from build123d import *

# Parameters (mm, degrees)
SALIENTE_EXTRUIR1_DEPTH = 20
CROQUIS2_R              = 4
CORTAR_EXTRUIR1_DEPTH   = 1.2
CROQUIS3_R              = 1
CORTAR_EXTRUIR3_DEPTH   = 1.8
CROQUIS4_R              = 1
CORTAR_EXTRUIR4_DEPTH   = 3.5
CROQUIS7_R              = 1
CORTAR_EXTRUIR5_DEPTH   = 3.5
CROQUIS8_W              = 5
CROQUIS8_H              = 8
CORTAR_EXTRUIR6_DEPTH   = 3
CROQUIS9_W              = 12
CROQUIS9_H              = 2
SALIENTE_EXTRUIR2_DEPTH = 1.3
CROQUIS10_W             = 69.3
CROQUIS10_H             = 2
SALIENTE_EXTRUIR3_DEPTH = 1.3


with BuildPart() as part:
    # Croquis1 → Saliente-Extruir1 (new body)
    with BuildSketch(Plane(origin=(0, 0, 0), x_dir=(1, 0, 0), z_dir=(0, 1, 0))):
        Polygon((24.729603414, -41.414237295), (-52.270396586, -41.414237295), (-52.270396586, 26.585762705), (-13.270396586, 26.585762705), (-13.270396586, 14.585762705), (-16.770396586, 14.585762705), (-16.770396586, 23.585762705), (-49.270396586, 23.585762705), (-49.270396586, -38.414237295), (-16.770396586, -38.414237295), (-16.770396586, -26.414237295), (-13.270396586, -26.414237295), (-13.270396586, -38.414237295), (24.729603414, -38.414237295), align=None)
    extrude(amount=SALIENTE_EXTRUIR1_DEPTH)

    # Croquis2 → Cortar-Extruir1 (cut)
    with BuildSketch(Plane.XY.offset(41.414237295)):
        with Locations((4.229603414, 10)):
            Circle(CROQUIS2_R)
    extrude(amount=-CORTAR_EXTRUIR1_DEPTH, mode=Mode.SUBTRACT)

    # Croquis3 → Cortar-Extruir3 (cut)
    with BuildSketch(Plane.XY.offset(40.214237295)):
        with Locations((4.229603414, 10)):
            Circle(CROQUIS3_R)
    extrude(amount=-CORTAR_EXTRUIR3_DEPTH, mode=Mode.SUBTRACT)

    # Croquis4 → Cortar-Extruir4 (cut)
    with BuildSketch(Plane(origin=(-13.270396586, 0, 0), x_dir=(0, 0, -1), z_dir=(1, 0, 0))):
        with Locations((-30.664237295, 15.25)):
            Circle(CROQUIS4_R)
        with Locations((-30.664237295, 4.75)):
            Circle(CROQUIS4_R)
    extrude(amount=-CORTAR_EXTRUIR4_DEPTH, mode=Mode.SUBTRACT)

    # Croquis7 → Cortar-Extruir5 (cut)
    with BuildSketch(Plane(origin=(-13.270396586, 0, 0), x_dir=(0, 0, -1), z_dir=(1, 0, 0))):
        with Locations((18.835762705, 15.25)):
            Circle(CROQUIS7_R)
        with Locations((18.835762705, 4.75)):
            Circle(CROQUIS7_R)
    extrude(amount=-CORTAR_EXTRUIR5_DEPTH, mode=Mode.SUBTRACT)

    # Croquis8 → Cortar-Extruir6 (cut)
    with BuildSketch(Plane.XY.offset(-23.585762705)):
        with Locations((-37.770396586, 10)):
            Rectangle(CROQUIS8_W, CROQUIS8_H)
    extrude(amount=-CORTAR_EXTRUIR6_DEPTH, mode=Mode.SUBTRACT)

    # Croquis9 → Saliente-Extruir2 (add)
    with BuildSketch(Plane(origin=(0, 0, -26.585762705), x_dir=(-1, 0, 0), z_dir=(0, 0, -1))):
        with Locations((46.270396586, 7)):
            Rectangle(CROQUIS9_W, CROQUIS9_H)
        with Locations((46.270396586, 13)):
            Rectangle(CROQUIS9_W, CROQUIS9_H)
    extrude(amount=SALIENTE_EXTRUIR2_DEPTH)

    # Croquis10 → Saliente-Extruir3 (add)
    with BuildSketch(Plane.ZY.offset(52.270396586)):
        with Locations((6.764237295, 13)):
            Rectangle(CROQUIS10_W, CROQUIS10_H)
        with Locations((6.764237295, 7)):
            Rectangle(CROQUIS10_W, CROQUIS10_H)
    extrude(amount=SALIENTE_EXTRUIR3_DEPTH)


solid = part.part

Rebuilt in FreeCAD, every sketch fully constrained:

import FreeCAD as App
import Part
import Sketcher
from FreeCAD import Vector

doc = App.newDocument("Part")
body = doc.addObject("PartDesign::Body", "Body")

sketch1 = body.newObject("Sketcher::SketchObject", "Sketch")
sketch1.AttachmentSupport = (doc.getObject("XZ_Plane"), [""])
sketch1.MapMode = "FlatFace"
sketch1.addGeometry([
    Part.LineSegment(Vector(-52.3, 41.4, 0), Vector(24.7, 41.4, 0)),
    Part.LineSegment(Vector(24.7, 41.4, 0), Vector(24.7, 38.4, 0)),
    Part.LineSegment(Vector(24.7, 38.4, 0), Vector(-13.3, 38.4, 0)),
    Part.LineSegment(Vector(-13.3, 38.4, 0), Vector(-13.3, 26.4, 0)),
    Part.LineSegment(Vector(-13.3, 26.4, 0), Vector(-16.8, 26.4, 0)),
    Part.LineSegment(Vector(-16.8, 26.4, 0), Vector(-16.8, 38.4, 0)),
    Part.LineSegment(Vector(-16.8, 38.4, 0), Vector(-49.3, 38.4, 0)),
    Part.LineSegment(Vector(-49.3, 38.4, 0), Vector(-49.3, -23.6, 0)),
    Part.LineSegment(Vector(-49.3, -23.6, 0), Vector(-16.8, -23.6, 0)),
    Part.LineSegment(Vector(-16.8, -23.6, 0), Vector(-16.8, -14.6, 0)),
    Part.LineSegment(Vector(-16.8, -14.6, 0), Vector(-13.3, -14.6, 0)),
    Part.LineSegment(Vector(-13.3, -14.6, 0), Vector(-13.3, -26.6, 0)),
    Part.LineSegment(Vector(-13.3, -26.6, 0), Vector(-52.3, -26.6, 0)),
    Part.LineSegment(Vector(-52.3, -26.6, 0), Vector(-52.3, 41.4, 0)),
], False)
sketch1.addConstraint([
    Sketcher.Constraint("Coincident", 0, 2, 1, 1),
    Sketcher.Constraint("Coincident", 1, 2, 2, 1),
    Sketcher.Constraint("Coincident", 2, 2, 3, 1),
    Sketcher.Constraint("Coincident", 3, 2, 4, 1),
    Sketcher.Constraint("Coincident", 4, 2, 5, 1),
    Sketcher.Constraint("Coincident", 5, 2, 6, 1),
    Sketcher.Constraint("Coincident", 6, 2, 7, 1),
    Sketcher.Constraint("Coincident", 7, 2, 8, 1),
    Sketcher.Constraint("Coincident", 8, 2, 9, 1),
    Sketcher.Constraint("Coincident", 9, 2, 10, 1),
    Sketcher.Constraint("Coincident", 10, 2, 11, 1),
    Sketcher.Constraint("Coincident", 11, 2, 12, 1),
    Sketcher.Constraint("Coincident", 12, 2, 13, 1),
    Sketcher.Constraint("Coincident", 13, 2, 0, 1),
    Sketcher.Constraint("Horizontal", 0),
    Sketcher.Constraint("Vertical", 1),
    Sketcher.Constraint("Horizontal", 2),
    Sketcher.Constraint("Vertical", 3),
    Sketcher.Constraint("Horizontal", 4),
    Sketcher.Constraint("Vertical", 5),
    Sketcher.Constraint("Horizontal", 6),
    Sketcher.Constraint("Vertical", 7),
    Sketcher.Constraint("Horizontal", 8),
    Sketcher.Constraint("Vertical", 9),
    Sketcher.Constraint("Horizontal", 10),
    Sketcher.Constraint("Vertical", 11),
    Sketcher.Constraint("Horizontal", 12),
    Sketcher.Constraint("Vertical", 13),
    Sketcher.Constraint("Horizontal", 2, 2, 5, 2),
    Sketcher.Constraint("Vertical", 5, 2, 8, 2),
    Sketcher.Constraint("Vertical", 3, 2, 10, 2),
    Sketcher.Constraint("Equal", 5, 11),
    Sketcher.Constraint("DistanceX", 0, 1, 0, 2, 77.0),
    Sketcher.Constraint("DistanceX", 2, 2, 2, 1, 38.0),
    Sketcher.Constraint("DistanceY", 1, 2, 1, 1, 3.0),
    Sketcher.Constraint("DistanceY", 3, 2, 3, 1, 12.0),
    Sketcher.Constraint("DistanceY", 7, 2, 7, 1, 62.0),
    Sketcher.Constraint("DistanceY", 9, 1, 9, 2, 9.0),
    Sketcher.Constraint("DistanceX", 4, 2, 4, 1, 3.5),
    Sketcher.Constraint("DistanceX", 6, 2, 6, 1, 32.5),
    Sketcher.Constraint("DistanceX", -1, 1, 0, 2, 24.729603),
    Sketcher.Constraint("DistanceY", -1, 1, 0, 2, 41.414237),
])
pad1 = body.newObject("PartDesign::Pad", "Pad")
pad1.Profile = sketch1
pad1.Length = 20
pad1.Reversed = True

sketch2 = body.newObject("Sketcher::SketchObject", "Sketch001")
sketch2.AttachmentSupport = (doc.getObject("XY_Plane"), [""])
sketch2.MapMode = "FlatFace"
sketch2.AttachmentOffset = App.Placement(Vector(0, 0, 41.414237), App.Rotation())
sketch2.addGeometry(Part.Circle(Vector(4.2, 10, 0), Vector(0, 0, 1), 4), False)
sketch2.addConstraint([
    Sketcher.Constraint("Diameter", 0, 8.0),
    Sketcher.Constraint("DistanceY", -1, 1, 0, 3, 10.0),
    Sketcher.Constraint("DistanceX", -1, 1, 0, 3, 4.229603),
])
pocket1 = body.newObject("PartDesign::Pocket", "Pocket")
pocket1.Profile = sketch2
pocket1.Length = 1.2

sketch3 = body.newObject("Sketcher::SketchObject", "Sketch002")
sketch3.AttachmentSupport = (doc.getObject("XY_Plane"), [""])
sketch3.MapMode = "FlatFace"
sketch3.AttachmentOffset = App.Placement(Vector(0, 0, 40.214237), App.Rotation())
sketch3.addGeometry(Part.Circle(Vector(4.2, 10, 0), Vector(0, 0, 1), 1), False)
sketch3.addConstraint([
    Sketcher.Constraint("Diameter", 0, 2.0),
    Sketcher.Constraint("DistanceY", -1, 1, 0, 3, 10.0),
    Sketcher.Constraint("DistanceX", -1, 1, 0, 3, 4.229603),
])
pocket2 = body.newObject("PartDesign::Pocket", "Pocket001")
pocket2.Profile = sketch3
pocket2.Length = 1.8

sketch4 = body.newObject("Sketcher::SketchObject", "Sketch003")
sketch4.AttachmentSupport = (doc.getObject("YZ_Plane"), [""])
sketch4.MapMode = "FlatFace"
sketch4.AttachmentOffset = App.Placement(Vector(0, 0, -13.270397), App.Rotation())
sketch4.addGeometry([
    Part.Circle(Vector(15.2, 30.7, 0), Vector(0, 0, 1), 1),
    Part.Circle(Vector(4.8, 30.7, 0), Vector(0, 0, 1), 1),
], False)
sketch4.addConstraint([
    Sketcher.Constraint("Equal", 0, 1),
    Sketcher.Constraint("Horizontal", 0, 3, 1, 3),
    Sketcher.Constraint("Diameter", 0, 2.0),
    Sketcher.Constraint("DistanceX", 1, 3, 0, 3, 10.5),
    Sketcher.Constraint("DistanceX", -1, 1, 0, 3, 15.25),
    Sketcher.Constraint("DistanceY", -1, 1, 0, 3, 30.664237),
])
pocket3 = body.newObject("PartDesign::Pocket", "Pocket002")
pocket3.Profile = sketch4
pocket3.Length = 3.5

sketch5 = body.newObject("Sketcher::SketchObject", "Sketch004")
sketch5.AttachmentSupport = (doc.getObject("YZ_Plane"), [""])
sketch5.MapMode = "FlatFace"
sketch5.AttachmentOffset = App.Placement(Vector(0, 0, -13.270397), App.Rotation())
sketch5.addGeometry([
    Part.Circle(Vector(15.2, -18.8, 0), Vector(0, 0, 1), 1),
    Part.Circle(Vector(4.8, -18.8, 0), Vector(0, 0, 1), 1),
], False)
sketch5.addConstraint([
    Sketcher.Constraint("Equal", 0, 1),
    Sketcher.Constraint("Horizontal", 0, 3, 1, 3),
    Sketcher.Constraint("Diameter", 0, 2.0),
    Sketcher.Constraint("DistanceX", 1, 3, 0, 3, 10.5),
    Sketcher.Constraint("DistanceX", -1, 1, 0, 3, 15.25),
    Sketcher.Constraint("DistanceY", 0, 3, -1, 1, 18.835763),
])
pocket4 = body.newObject("PartDesign::Pocket", "Pocket003")
pocket4.Profile = sketch5
pocket4.Length = 3.5

sketch6 = body.newObject("Sketcher::SketchObject", "Sketch005")
sketch6.AttachmentSupport = (doc.getObject("XY_Plane"), [""])
sketch6.MapMode = "FlatFace"
sketch6.AttachmentOffset = App.Placement(Vector(0, 0, -23.585763), App.Rotation())
sketch6.addGeometry([
    Part.LineSegment(Vector(-40, 14, 0), Vector(-40, 6, 0)),
    Part.LineSegment(Vector(-40, 6, 0), Vector(-35, 6, 0)),
    Part.LineSegment(Vector(-35, 6, 0), Vector(-35, 14, 0)),
    Part.LineSegment(Vector(-35, 14, 0), Vector(-40, 14, 0)),
], False)
sketch6.addConstraint([
    Sketcher.Constraint("Coincident", 0, 2, 1, 1),
    Sketcher.Constraint("Coincident", 1, 2, 2, 1),
    Sketcher.Constraint("Coincident", 2, 2, 3, 1),
    Sketcher.Constraint("Coincident", 3, 2, 0, 1),
    Sketcher.Constraint("Vertical", 0),
    Sketcher.Constraint("Horizontal", 1),
    Sketcher.Constraint("Vertical", 2),
    Sketcher.Constraint("Horizontal", 3),
    Sketcher.Constraint("DistanceX", 1, 1, 1, 2, 5.0),
    Sketcher.Constraint("DistanceY", 0, 2, 0, 1, 8.0),
    Sketcher.Constraint("DistanceY", -1, 1, 0, 2, 6.0),
    Sketcher.Constraint("DistanceX", 0, 2, -1, 1, 40.270397),
])
pocket5 = body.newObject("PartDesign::Pocket", "Pocket004")
pocket5.Profile = sketch6
pocket5.Length = 3

sketch7 = body.newObject("Sketcher::SketchObject", "Sketch006")
sketch7.AttachmentSupport = (doc.getObject("XY_Plane"), [""])
sketch7.MapMode = "FlatFace"
sketch7.AttachmentOffset = App.Placement(Vector(0, 0, -26.585763), App.Rotation())
sketch7.addGeometry([
    Part.LineSegment(Vector(-40.3, 8, 0), Vector(-40.3, 6, 0)),
    Part.LineSegment(Vector(-40.3, 6, 0), Vector(-52.3, 6, 0)),
    Part.LineSegment(Vector(-52.3, 6, 0), Vector(-52.3, 8, 0)),
    Part.LineSegment(Vector(-52.3, 8, 0), Vector(-40.3, 8, 0)),
    Part.LineSegment(Vector(-40.3, 14, 0), Vector(-40.3, 12, 0)),
    Part.LineSegment(Vector(-40.3, 12, 0), Vector(-52.3, 12, 0)),
    Part.LineSegment(Vector(-52.3, 12, 0), Vector(-52.3, 14, 0)),
    Part.LineSegment(Vector(-52.3, 14, 0), Vector(-40.3, 14, 0)),
], False)
sketch7.addConstraint([
    Sketcher.Constraint("Coincident", 0, 2, 1, 1),
    Sketcher.Constraint("Coincident", 1, 2, 2, 1),
    Sketcher.Constraint("Coincident", 2, 2, 3, 1),
    Sketcher.Constraint("Coincident", 3, 2, 0, 1),
    Sketcher.Constraint("Coincident", 4, 2, 5, 1),
    Sketcher.Constraint("Coincident", 5, 2, 6, 1),
    Sketcher.Constraint("Coincident", 6, 2, 7, 1),
    Sketcher.Constraint("Coincident", 7, 2, 4, 1),
    Sketcher.Constraint("Vertical", 0),
    Sketcher.Constraint("Horizontal", 1),
    Sketcher.Constraint("Vertical", 2),
    Sketcher.Constraint("Horizontal", 3),
    Sketcher.Constraint("Vertical", 4),
    Sketcher.Constraint("Horizontal", 5),
    Sketcher.Constraint("Vertical", 6),
    Sketcher.Constraint("Horizontal", 7),
    Sketcher.Constraint("Vertical", 3, 2, 4, 2),
    Sketcher.Constraint("Vertical", 2, 2, 5, 2),
    Sketcher.Constraint("Equal", 2, 4),
    Sketcher.Constraint("DistanceX", 1, 2, 1, 1, 12.0),
    Sketcher.Constraint("DistanceY", 0, 2, 0, 1, 2.0),
    Sketcher.Constraint("DistanceY", -1, 1, 0, 2, 6.0),
    Sketcher.Constraint("DistanceY", -1, 1, 4, 2, 12.0),
    Sketcher.Constraint("DistanceX", 0, 2, -1, 1, 40.270397),
])
pad2 = body.newObject("PartDesign::Pad", "Pad001")
pad2.Profile = sketch7
pad2.Length = 1.3
pad2.Reversed = True

sketch8 = body.newObject("Sketcher::SketchObject", "Sketch007")
sketch8.AttachmentSupport = (doc.getObject("YZ_Plane"), [""])
sketch8.MapMode = "FlatFace"
sketch8.AttachmentOffset = App.Placement(Vector(0, 0, -52.270397), App.Rotation())
sketch8.addGeometry([
    Part.LineSegment(Vector(14, -27.9, 0), Vector(12, -27.9, 0)),
    Part.LineSegment(Vector(12, -27.9, 0), Vector(12, 41.4, 0)),
    Part.LineSegment(Vector(12, 41.4, 0), Vector(14, 41.4, 0)),
    Part.LineSegment(Vector(14, 41.4, 0), Vector(14, -27.9, 0)),
    Part.LineSegment(Vector(8, -27.9, 0), Vector(6, -27.9, 0)),
    Part.LineSegment(Vector(6, -27.9, 0), Vector(6, 41.4, 0)),
    Part.LineSegment(Vector(6, 41.4, 0), Vector(8, 41.4, 0)),
    Part.LineSegment(Vector(8, 41.4, 0), Vector(8, -27.9, 0)),
], False)
sketch8.addConstraint([
    Sketcher.Constraint("Coincident", 0, 2, 1, 1),
    Sketcher.Constraint("Coincident", 1, 2, 2, 1),
    Sketcher.Constraint("Coincident", 2, 2, 3, 1),
    Sketcher.Constraint("Coincident", 3, 2, 0, 1),
    Sketcher.Constraint("Coincident", 4, 2, 5, 1),
    Sketcher.Constraint("Coincident", 5, 2, 6, 1),
    Sketcher.Constraint("Coincident", 6, 2, 7, 1),
    Sketcher.Constraint("Coincident", 7, 2, 4, 1),
    Sketcher.Constraint("Horizontal", 0),
    Sketcher.Constraint("Vertical", 1),
    Sketcher.Constraint("Horizontal", 2),
    Sketcher.Constraint("Vertical", 3),
    Sketcher.Constraint("Horizontal", 4),
    Sketcher.Constraint("Vertical", 5),
    Sketcher.Constraint("Horizontal", 6),
    Sketcher.Constraint("Vertical", 7),
    Sketcher.Constraint("Horizontal", 3, 2, 4, 2),
    Sketcher.Constraint("Horizontal", 2, 2, 5, 2),
    Sketcher.Constraint("Equal", 2, 4),
    Sketcher.Constraint("DistanceX", 0, 2, 0, 1, 2.0),
    Sketcher.Constraint("DistanceY", 1, 1, 1, 2, 69.3),
    Sketcher.Constraint("DistanceX", -1, 1, 0, 2, 12.0),
    Sketcher.Constraint("DistanceX", -1, 1, 4, 2, 6.0),
    Sketcher.Constraint("DistanceY", 0, 2, -1, 1, 27.885763),
])
pad3 = body.newObject("PartDesign::Pad", "Pad002")
pad3.Profile = sketch8
pad3.Length = 1.3
pad3.Reversed = True

doc.recompute()
